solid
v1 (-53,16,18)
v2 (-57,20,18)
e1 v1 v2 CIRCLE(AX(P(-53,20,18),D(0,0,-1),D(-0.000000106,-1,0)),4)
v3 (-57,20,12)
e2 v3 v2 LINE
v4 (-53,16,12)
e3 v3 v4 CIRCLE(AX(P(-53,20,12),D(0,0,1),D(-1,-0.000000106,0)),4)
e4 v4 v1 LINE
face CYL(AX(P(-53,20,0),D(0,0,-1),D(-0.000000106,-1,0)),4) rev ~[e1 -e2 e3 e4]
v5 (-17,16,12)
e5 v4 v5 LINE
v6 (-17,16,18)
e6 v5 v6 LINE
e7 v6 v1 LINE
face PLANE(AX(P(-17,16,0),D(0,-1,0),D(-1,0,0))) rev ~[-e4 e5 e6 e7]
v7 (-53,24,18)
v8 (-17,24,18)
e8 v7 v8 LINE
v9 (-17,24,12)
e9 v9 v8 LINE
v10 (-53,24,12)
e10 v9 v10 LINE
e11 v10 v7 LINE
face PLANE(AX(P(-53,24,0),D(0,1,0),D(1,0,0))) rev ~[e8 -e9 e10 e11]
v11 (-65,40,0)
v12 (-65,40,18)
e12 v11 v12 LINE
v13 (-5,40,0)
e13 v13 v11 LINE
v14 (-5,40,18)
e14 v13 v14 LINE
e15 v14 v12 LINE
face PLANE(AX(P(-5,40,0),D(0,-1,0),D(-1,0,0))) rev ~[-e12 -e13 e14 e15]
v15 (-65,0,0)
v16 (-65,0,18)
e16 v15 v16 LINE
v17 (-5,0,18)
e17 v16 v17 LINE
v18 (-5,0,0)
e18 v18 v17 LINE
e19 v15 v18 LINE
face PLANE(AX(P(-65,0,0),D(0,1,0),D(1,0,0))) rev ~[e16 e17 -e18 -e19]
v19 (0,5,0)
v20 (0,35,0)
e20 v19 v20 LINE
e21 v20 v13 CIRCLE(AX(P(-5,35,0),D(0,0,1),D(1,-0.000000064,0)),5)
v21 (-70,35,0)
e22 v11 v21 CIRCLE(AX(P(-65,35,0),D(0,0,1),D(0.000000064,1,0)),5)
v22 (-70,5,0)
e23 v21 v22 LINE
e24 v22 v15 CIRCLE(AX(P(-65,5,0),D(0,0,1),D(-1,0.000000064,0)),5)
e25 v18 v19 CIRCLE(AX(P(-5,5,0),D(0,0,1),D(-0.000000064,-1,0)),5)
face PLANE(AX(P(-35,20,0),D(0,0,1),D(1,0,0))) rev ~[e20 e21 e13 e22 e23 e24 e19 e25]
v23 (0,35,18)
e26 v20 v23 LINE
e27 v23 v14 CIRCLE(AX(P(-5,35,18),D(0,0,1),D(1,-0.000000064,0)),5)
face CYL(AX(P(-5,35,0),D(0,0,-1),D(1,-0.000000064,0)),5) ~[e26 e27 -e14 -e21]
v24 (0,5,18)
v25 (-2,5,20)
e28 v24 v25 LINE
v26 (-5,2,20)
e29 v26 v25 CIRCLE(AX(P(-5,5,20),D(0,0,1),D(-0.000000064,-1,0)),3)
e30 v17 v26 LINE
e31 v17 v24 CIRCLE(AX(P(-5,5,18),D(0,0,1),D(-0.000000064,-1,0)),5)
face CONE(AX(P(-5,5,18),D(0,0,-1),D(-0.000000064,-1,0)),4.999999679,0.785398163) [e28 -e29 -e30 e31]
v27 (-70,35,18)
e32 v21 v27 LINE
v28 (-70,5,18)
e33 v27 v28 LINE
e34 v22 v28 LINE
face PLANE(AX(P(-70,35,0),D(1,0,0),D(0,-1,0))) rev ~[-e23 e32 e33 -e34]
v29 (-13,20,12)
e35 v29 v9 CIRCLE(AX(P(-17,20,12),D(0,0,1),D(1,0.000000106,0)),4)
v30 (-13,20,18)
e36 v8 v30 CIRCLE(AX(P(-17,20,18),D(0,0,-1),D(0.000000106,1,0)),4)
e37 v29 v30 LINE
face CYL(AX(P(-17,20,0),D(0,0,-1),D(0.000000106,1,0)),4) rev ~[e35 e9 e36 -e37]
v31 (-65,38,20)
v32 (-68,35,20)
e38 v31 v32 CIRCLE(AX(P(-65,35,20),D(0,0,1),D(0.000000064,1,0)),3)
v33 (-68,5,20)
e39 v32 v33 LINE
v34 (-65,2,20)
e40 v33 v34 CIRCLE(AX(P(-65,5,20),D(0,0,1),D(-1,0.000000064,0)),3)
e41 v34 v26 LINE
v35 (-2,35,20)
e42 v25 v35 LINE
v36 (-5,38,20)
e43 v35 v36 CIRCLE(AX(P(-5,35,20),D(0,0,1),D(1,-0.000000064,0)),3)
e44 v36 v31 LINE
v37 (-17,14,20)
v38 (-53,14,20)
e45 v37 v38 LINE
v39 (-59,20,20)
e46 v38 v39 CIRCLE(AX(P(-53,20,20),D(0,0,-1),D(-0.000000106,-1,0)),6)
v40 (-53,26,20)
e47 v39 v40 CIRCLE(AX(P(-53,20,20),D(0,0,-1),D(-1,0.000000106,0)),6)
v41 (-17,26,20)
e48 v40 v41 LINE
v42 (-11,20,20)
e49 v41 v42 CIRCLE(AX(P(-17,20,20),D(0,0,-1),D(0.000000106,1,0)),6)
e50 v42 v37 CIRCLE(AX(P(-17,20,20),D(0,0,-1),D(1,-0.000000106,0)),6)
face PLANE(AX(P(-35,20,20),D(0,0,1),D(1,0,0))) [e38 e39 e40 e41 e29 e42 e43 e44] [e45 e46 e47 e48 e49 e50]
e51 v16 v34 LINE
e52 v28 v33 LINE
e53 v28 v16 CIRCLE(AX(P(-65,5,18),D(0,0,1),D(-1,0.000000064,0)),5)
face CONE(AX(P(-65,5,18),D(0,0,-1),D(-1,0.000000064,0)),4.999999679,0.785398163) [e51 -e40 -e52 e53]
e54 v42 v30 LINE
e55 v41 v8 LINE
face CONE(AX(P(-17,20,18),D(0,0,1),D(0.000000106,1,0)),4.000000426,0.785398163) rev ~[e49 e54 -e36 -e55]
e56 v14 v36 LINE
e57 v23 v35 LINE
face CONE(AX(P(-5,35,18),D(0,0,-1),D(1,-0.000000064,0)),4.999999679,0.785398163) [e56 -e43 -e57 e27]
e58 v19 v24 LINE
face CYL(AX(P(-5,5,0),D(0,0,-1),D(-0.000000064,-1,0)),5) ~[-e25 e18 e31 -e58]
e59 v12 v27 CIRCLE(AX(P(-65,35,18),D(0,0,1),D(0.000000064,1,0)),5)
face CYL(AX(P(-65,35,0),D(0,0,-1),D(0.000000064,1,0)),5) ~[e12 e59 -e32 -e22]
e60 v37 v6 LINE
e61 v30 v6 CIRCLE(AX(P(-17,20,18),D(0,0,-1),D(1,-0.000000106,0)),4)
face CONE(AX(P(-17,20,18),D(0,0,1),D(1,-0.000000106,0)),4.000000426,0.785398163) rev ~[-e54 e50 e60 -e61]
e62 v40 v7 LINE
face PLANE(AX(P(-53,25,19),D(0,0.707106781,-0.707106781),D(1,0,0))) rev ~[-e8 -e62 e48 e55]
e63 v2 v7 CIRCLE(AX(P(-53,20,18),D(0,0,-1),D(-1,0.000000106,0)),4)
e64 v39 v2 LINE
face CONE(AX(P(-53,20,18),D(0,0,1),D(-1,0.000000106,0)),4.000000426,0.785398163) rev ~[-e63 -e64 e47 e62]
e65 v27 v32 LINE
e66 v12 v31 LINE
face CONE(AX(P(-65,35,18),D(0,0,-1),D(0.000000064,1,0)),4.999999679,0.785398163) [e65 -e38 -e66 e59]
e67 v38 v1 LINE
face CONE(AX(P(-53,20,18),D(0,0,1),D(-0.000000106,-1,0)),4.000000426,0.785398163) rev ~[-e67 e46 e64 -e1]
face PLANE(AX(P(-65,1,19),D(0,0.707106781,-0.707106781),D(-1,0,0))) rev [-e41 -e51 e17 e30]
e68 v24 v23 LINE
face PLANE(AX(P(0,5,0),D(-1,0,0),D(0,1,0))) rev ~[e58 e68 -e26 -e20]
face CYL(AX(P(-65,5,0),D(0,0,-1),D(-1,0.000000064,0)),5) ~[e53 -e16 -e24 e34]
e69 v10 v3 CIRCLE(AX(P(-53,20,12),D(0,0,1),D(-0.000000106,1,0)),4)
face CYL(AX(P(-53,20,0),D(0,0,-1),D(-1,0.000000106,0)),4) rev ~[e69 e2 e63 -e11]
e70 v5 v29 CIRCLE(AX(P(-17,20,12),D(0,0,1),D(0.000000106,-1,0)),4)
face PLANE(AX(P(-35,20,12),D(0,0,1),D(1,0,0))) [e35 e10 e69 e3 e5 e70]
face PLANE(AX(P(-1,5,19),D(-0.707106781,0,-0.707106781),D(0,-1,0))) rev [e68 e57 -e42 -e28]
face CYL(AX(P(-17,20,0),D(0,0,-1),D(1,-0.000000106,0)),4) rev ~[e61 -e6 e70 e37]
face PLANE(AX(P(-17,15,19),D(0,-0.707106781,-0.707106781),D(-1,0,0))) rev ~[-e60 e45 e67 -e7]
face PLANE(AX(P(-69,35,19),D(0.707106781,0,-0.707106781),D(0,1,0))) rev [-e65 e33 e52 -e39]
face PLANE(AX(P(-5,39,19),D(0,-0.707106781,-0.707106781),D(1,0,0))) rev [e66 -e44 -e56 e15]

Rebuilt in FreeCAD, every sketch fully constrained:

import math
import FreeCAD as App
import Part
import Sketcher
from FreeCAD import Vector
Q = App.Units.Quantity


def edges_at(feature, points):
    """Names of the edges that pass closest to the given points."""
    edges = feature.Shape.Edges
    near = lambda p: min(range(len(edges)), key=lambda i: edges[i].distToShape(Part.Vertex(*p))[0])
    return sorted({f"Edge{near(p) + 1}" for p in points})

doc = App.newDocument("Part")
body = doc.addObject("PartDesign::Body", "Body")

sketch1 = doc.addObject("Sketcher::SketchObject", "Sketch")
body.addObject(sketch1)
sketch1.AttachmentSupport = (doc.XY_Plane, [""])
sketch1.MapMode = "FlatFace"
sketch1.addGeometry([
    Part.LineSegment(Vector(-65, 0, 0), Vector(-5, 0, 0)),
    Part.ArcOfCircle(Part.Circle(Vector(-5, 5, 0), Vector(0, 0, 1), 5), math.radians(-90), math.radians(0)),
    Part.LineSegment(Vector(0, 5, 0), Vector(0, 35, 0)),
    Part.ArcOfCircle(Part.Circle(Vector(-5, 35, 0), Vector(0, 0, 1), 5), math.radians(0), math.radians(90)),
    Part.LineSegment(Vector(-5, 40, 0), Vector(-65, 40, 0)),
    Part.ArcOfCircle(Part.Circle(Vector(-65, 35, 0), Vector(0, 0, 1), 5), math.radians(90), math.radians(180)),
    Part.LineSegment(Vector(-70, 35, 0), Vector(-70, 5, 0)),
    Part.ArcOfCircle(Part.Circle(Vector(-65, 5, 0), Vector(0, 0, 1), 5), math.radians(180), math.radians(270)),
    Part.ArcOfCircle(Part.Circle(Vector(-53, 20, 0), Vector(0, 0, 1), 4), math.radians(-180), math.radians(-90)),
    Part.ArcOfCircle(Part.Circle(Vector(-53, 20, 0), Vector(0, 0, 1), 4), math.radians(90), math.radians(180)),
    Part.LineSegment(Vector(-53, 24, 0), Vector(-17, 24, 0)),
    Part.ArcOfCircle(Part.Circle(Vector(-17, 20, 0), Vector(0, 0, 1), 4), math.radians(0), math.radians(90)),
    Part.ArcOfCircle(Part.Circle(Vector(-17, 20, 0), Vector(0, 0, 1), 4), math.radians(-90), math.radians(0)),
    Part.LineSegment(Vector(-17, 16, 0), Vector(-53, 16, 0)),
], False)
sketch1.addConstraint([
    Sketcher.Constraint("Tangent", 0, 2, 1, 1),
    Sketcher.Constraint("Tangent", 1, 2, 2, 1),
    Sketcher.Constraint("Tangent", 2, 2, 3, 1),
    Sketcher.Constraint("Tangent", 3, 2, 4, 1),
    Sketcher.Constraint("Tangent", 4, 2, 5, 1),
    Sketcher.Constraint("Tangent", 5, 2, 6, 1),
    Sketcher.Constraint("Tangent", 6, 2, 7, 1),
    Sketcher.Constraint("Tangent", 7, 2, 0, 1),
    Sketcher.Constraint("Tangent", 8, 1, 9, 2),
    Sketcher.Constraint("Tangent", 9, 1, 10, 1),
    Sketcher.Constraint("Tangent", 10, 2, 11, 2),
    Sketcher.Constraint("Tangent", 11, 1, 12, 2),
    Sketcher.Constraint("Tangent", 12, 1, 13, 1),
    Sketcher.Constraint("Tangent", 13, 2, 8, 2),
    Sketcher.Constraint("Horizontal", 0),
    Sketcher.Constraint("Vertical", 2),
    Sketcher.Constraint("Horizontal", 4),
    Sketcher.Constraint("Vertical", 6),
    Sketcher.Constraint("Horizontal", 10),
    Sketcher.Constraint("Horizontal", 13),
    Sketcher.Constraint("Equal", 1, 3),
    Sketcher.Constraint("Equal", 3, 5),
    Sketcher.Constraint("Equal", 5, 7),
    Sketcher.Constraint("Equal", 8, 9),
    Sketcher.Constraint("Equal", 9, 11),
    Sketcher.Constraint("PointOnObject", 0, 2, -1),
    Sketcher.Constraint("PointOnObject", 1, 2, -2),
    Sketcher.Constraint("Horizontal", 12, 3, 8, 1),
    Sketcher.Constraint("Horizontal", 8, 1, 11, 1),
    Sketcher.Constraint("Radius", 1, Q("5 mm")),
    Sketcher.Constraint("Radius", 8, Q("4 mm")),
    Sketcher.Constraint("DistanceX", 0, 1, 0, 2, Q("60 mm")),
    Sketcher.Constraint("DistanceX", 10, 1, 10, 2, Q("36 mm")),
    Sketcher.Constraint("DistanceY", 2, 1, 2, 2, Q("30 mm")),
    Sketcher.Constraint("DistanceX", 8, 3, -1, 1, Q("53 mm")),
    Sketcher.Constraint("DistanceY", -1, 1, 8, 3, Q("20 mm")),
])
pad1 = doc.addObject("PartDesign::Pad", "Pad")
body.addObject(pad1)
pad1.Profile = sketch1
pad1.Length = 20

sketch2 = doc.addObject("Sketcher::SketchObject", "Sketch001")
body.addObject(sketch2)
sketch2.AttachmentSupport = (doc.XY_Plane, [""])
sketch2.MapMode = "FlatFace"
sketch2.addGeometry([
    Part.LineSegment(Vector(-17, 24, 0), Vector(-53, 24, 0)),
    Part.ArcOfCircle(Part.Circle(Vector(-53, 20, 0), Vector(0, 0, 1), 4), math.radians(90), math.radians(180)),
    Part.ArcOfCircle(Part.Circle(Vector(-53, 20, 0), Vector(0, 0, 1), 4), math.radians(-180), math.radians(-90)),
    Part.LineSegment(Vector(-53, 16, 0), Vector(-17, 16, 0)),
    Part.ArcOfCircle(Part.Circle(Vector(-17, 20, 0), Vector(0, 0, 1), 4), math.radians(-90), math.radians(0)),
    Part.ArcOfCircle(Part.Circle(Vector(-17, 20, 0), Vector(0, 0, 1), 4), math.radians(0), math.radians(90)),
], False)
sketch2.addConstraint([
    Sketcher.Constraint("Tangent", 0, 2, 1, 1),
    Sketcher.Constraint("Tangent", 1, 2, 2, 1),
    Sketcher.Constraint("Tangent", 2, 2, 3, 1),
    Sketcher.Constraint("Tangent", 3, 2, 4, 1),
    Sketcher.Constraint("Tangent", 4, 2, 5, 1),
    Sketcher.Constraint("Tangent", 5, 2, 0, 1),
    Sketcher.Constraint("Horizontal", 0),
    Sketcher.Constraint("Horizontal", 3),
    Sketcher.Constraint("Equal", 1, 2),
    Sketcher.Constraint("Equal", 2, 4),
    Sketcher.Constraint("Horizontal", 5, 3, 1, 2),
    Sketcher.Constraint("Horizontal", 1, 2, 4, 2),
    Sketcher.Constraint("Radius", 1, Q("4 mm")),
    Sketcher.Constraint("DistanceX", 0, 2, 0, 1, Q("36 mm")),
    Sketcher.Constraint("DistanceX", 1, 3, -1, 1, Q("53 mm")),
    Sketcher.Constraint("DistanceY", -1, 1, 1, 3, Q("20 mm")),
])
pad2 = doc.addObject("PartDesign::Pad", "Pad001")
body.addObject(pad2)
pad2.Profile = sketch2
pad2.Length = 12
doc.recompute()

chamfer = doc.addObject("PartDesign::Chamfer", "Chamfer")
body.addObject(chamfer)
chamfer.Base = (pad2, edges_at(pad2, [(-35, 24, 20), (-35, 0, 20)]))
chamfer.Size = 2

doc.recompute()
